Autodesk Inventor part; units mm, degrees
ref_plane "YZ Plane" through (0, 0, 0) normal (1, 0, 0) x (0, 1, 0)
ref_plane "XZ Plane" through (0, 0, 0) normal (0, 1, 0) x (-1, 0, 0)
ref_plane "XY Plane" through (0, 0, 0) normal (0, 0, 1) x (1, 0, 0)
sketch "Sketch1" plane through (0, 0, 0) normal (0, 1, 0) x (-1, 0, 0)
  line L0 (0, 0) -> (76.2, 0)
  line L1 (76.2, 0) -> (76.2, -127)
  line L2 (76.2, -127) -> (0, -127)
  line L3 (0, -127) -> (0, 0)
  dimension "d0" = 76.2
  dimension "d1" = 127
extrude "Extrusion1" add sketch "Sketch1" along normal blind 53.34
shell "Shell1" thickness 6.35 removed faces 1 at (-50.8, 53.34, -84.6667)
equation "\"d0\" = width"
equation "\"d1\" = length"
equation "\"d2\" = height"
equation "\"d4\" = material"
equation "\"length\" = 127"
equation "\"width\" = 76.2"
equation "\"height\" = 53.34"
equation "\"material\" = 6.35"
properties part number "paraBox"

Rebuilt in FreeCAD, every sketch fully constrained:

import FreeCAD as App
import Part
import Sketcher
from FreeCAD import Vector
Q = App.Units.Quantity


def faces_at(feature, points):
    """Names of the faces that lie closest to the given points."""
    faces = feature.Shape.Faces
    near = lambda p: min(range(len(faces)), key=lambda i: faces[i].distToShape(Part.Vertex(*p))[0])
    return sorted({f"Face{near(p) + 1}" for p in points})

doc = App.newDocument("Part")
body = doc.addObject("PartDesign::Body", "Body")

# Sketch on XZ plane
sketch1 = body.newObject("Sketcher::SketchObject", "Sketch")
sketch1.AttachmentSupport = (doc.getObject("XZ_Plane"), [""])
sketch1.MapMode = "FlatFace"
sketch1.addGeometry([
    Part.LineSegment(Vector(-76.2, 0, 0), Vector(0, 0, 0)),
    Part.LineSegment(Vector(0, 0, 0), Vector(0, -127, 0)),
    Part.LineSegment(Vector(0, -127, 0), Vector(-76.2, -127, 0)),
    Part.LineSegment(Vector(-76.2, -127, 0), Vector(-76.2, 0, 0)),
], False)
sketch1.addConstraint([
    Sketcher.Constraint("Coincident", 0, 2, 1, 1),
    Sketcher.Constraint("Coincident", 1, 2, 2, 1),
    Sketcher.Constraint("Coincident", 2, 2, 3, 1),
    Sketcher.Constraint("Coincident", 3, 2, 0, 1),
    Sketcher.Constraint("Horizontal", 0),
    Sketcher.Constraint("Vertical", 1),
    Sketcher.Constraint("Horizontal", 2),
    Sketcher.Constraint("Vertical", 3),
    Sketcher.Constraint("Coincident", 0, 2, -1, 1),
    Sketcher.Constraint("DistanceX", 0, 1, 0, 2, Q("3 in")),
    Sketcher.Constraint("DistanceY", 1, 2, 1, 1, Q("5 in")),
])
pad1 = body.newObject("PartDesign::Pad", "Pad")
pad1.Profile = sketch1
pad1.Length = Q("2.1 in")
pad1.Reversed = True
doc.recompute()

thickness = body.newObject("PartDesign::Thickness", "Thickness")
thickness.Base = (pad1, faces_at(pad1, [(-50.8, 53.34, -84.667)]))
thickness.Value = Q("0.25 in")
thickness.Reversed = True
thickness.Join = "Intersection"

doc.recompute()
